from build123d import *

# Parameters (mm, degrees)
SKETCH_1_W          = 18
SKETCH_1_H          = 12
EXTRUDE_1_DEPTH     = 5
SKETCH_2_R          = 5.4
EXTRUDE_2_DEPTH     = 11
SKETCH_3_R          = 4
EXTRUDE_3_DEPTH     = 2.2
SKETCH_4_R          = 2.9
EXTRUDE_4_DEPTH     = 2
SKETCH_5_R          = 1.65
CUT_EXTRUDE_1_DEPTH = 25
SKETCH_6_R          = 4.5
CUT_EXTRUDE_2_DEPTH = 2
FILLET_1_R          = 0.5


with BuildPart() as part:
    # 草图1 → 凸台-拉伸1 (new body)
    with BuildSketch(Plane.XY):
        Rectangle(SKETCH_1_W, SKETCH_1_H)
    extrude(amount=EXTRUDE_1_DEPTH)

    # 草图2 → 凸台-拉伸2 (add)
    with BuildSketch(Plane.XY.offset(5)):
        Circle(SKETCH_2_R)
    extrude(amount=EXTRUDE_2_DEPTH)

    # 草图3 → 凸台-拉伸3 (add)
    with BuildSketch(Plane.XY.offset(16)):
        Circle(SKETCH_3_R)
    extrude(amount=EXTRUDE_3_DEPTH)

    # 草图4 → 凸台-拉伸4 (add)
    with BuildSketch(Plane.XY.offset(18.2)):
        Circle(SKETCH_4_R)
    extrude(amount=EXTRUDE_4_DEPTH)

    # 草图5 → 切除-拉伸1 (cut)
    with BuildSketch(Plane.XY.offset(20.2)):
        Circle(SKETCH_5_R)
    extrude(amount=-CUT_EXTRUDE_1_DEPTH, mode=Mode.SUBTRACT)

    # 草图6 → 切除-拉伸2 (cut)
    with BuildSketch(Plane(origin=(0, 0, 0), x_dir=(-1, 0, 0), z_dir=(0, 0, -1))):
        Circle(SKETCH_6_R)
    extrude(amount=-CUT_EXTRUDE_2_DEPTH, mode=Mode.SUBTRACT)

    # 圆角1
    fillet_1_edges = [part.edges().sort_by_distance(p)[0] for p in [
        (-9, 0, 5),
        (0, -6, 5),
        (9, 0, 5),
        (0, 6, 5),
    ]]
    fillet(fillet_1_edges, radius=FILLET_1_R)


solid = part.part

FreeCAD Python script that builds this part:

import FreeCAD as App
import Part
import Sketcher

V = App.Vector
Q = App.Units.Quantity


def edges_at(feature, points):
    """Names of the edges that pass closest to the given points."""
    edges = feature.Shape.Edges
    near = lambda p: min(range(len(edges)), key=lambda i: edges[i].distToShape(Part.Vertex(*p))[0])
    return sorted({f"Edge{near(p) + 1}" for p in points})


def add_polygon(sketch, points):
    """Adds a closed chain of lines whose ends are joined by coincident constraints."""
    first, n = sketch.GeometryCount, len(points)
    for a, b in zip(points, points[1:] + points[:1]):
        sketch.addGeometry(Part.LineSegment(App.Vector(*a, 0), App.Vector(*b, 0)), False)
    for i in range(n):
        sketch.addConstraint(Sketcher.Constraint("Coincident", first + i, 2, first + (i + 1) % n, 1))

doc = App.newDocument("Part")
body = doc.addObject("PartDesign::Body", "Body")

# Sketch on XY plane
sketch1 = body.newObject("Sketcher::SketchObject", "Sketch")
sketch1.AttachmentSupport = (doc.getObject("XY_Plane"), [""])
sketch1.MapMode = "FlatFace"
add_polygon(sketch1, [(-9, 6), (-9, -6), (9, -6), (9, 6)])  # lines 0-3
sketch1.addConstraint([
    Sketcher.Constraint("Vertical", 0),
    Sketcher.Constraint("Horizontal", 1),
    Sketcher.Constraint("Vertical", 2),
    Sketcher.Constraint("Horizontal", 3),
    Sketcher.Constraint("Symmetric", 0, 2, 2, 2, -1, 1),
    Sketcher.Constraint("DistanceX", 1, 1, 1, 2, Q("18 mm")),
    Sketcher.Constraint("DistanceY", 0, 2, 0, 1, Q("12 mm")),
])
pad1 = body.newObject("PartDesign::Pad", "Pad")
pad1.Profile = sketch1
pad1.Length = 5

# Sketch on XY plane
sketch2 = body.newObject("Sketcher::SketchObject", "Sketch001")
sketch2.AttachmentSupport = (doc.getObject("XY_Plane"), [""])
sketch2.MapMode = "FlatFace"
sketch2.AttachmentOffset = App.Placement(V(0, 0, 5), App.Rotation())
sketch2.addGeometry(Part.Circle(V(0, 0, 0), V(0, 0, 1), 5), False)
sketch2.addConstraint([
    Sketcher.Constraint("Coincident", 0, 3, -1, 1),
    Sketcher.Constraint("Diameter", 0, Q("10.8 mm")),
])
pad2 = body.newObject("PartDesign::Pad", "Pad001")
pad2.Profile = sketch2
pad2.Length = 11

# Sketch on XY plane
sketch3 = body.newObject("Sketcher::SketchObject", "Sketch002")
sketch3.AttachmentSupport = (doc.getObject("XY_Plane"), [""])
sketch3.MapMode = "FlatFace"
sketch3.AttachmentOffset = App.Placement(V(0, 0, 16), App.Rotation())
sketch3.addGeometry(Part.Circle(V(0, 0, 0), V(0, 0, 1), 4), False)
sketch3.addConstraint([
    Sketcher.Constraint("Coincident", 0, 3, -1, 1),
    Sketcher.Constraint("Diameter", 0, Q("8 mm")),
])
pad3 = body.newObject("PartDesign::Pad", "Pad002")
pad3.Profile = sketch3
pad3.Length = 2.2

# Sketch on XY plane
sketch4 = body.newObject("Sketcher::SketchObject", "Sketch003")
sketch4.AttachmentSupport = (doc.getObject("XY_Plane"), [""])
sketch4.MapMode = "FlatFace"
sketch4.AttachmentOffset = App.Placement(V(0, 0, 18.2), App.Rotation())
sketch4.addGeometry(Part.Circle(V(0, 0, 0), V(0, 0, 1), 2.9), False)
sketch4.addConstraint([
    Sketcher.Constraint("Coincident", 0, 3, -1, 1),
    Sketcher.Constraint("Diameter", 0, Q("5.8 mm")),
])
pad4 = body.newObject("PartDesign::Pad", "Pad003")
pad4.Profile = sketch4
pad4.Length = 2

# Sketch on XY plane
sketch5 = body.newObject("Sketcher::SketchObject", "Sketch004")
sketch5.AttachmentSupport = (doc.getObject("XY_Plane"), [""])
sketch5.MapMode = "FlatFace"
sketch5.AttachmentOffset = App.Placement(V(0, 0, 20.2), App.Rotation())
sketch5.addGeometry(Part.Circle(V(0, 0, 0), V(0, 0, 1), 1.6), False)
sketch5.addConstraint([
    Sketcher.Constraint("Coincident", 0, 3, -1, 1),
    Sketcher.Constraint("Diameter", 0, Q("3.3 mm")),
])
pocket1 = body.newObject("PartDesign::Pocket", "Pocket")
pocket1.Profile = sketch5
pocket1.Length = 25

# Sketch on XY plane
sketch6 = body.newObject("Sketcher::SketchObject", "Sketch005")
sketch6.AttachmentSupport = (doc.getObject("XY_Plane"), [""])
sketch6.MapMode = "FlatFace"
sketch6.addGeometry(Part.Circle(V(0, 0, 0), V(0, 0, 1), 4.5), False)
sketch6.addConstraint([
    Sketcher.Constraint("Coincident", 0, 3, -1, 1),
    Sketcher.Constraint("Diameter", 0, Q("9 mm")),
])
pocket2 = body.newObject("PartDesign::Pocket", "Pocket001")
pocket2.Profile = sketch6
pocket2.Length = 2
pocket2.Reversed = True
doc.recompute()

fillet = body.newObject("PartDesign::Fillet", "Fillet")
fillet.Base = (pocket2, edges_at(pocket2, [
    (-9, 0, 5),
    (0, -6, 5),
    (9, 0, 5),
    (0, 6, 5),
]))
fillet.Radius = 0.5

doc.recompute()
